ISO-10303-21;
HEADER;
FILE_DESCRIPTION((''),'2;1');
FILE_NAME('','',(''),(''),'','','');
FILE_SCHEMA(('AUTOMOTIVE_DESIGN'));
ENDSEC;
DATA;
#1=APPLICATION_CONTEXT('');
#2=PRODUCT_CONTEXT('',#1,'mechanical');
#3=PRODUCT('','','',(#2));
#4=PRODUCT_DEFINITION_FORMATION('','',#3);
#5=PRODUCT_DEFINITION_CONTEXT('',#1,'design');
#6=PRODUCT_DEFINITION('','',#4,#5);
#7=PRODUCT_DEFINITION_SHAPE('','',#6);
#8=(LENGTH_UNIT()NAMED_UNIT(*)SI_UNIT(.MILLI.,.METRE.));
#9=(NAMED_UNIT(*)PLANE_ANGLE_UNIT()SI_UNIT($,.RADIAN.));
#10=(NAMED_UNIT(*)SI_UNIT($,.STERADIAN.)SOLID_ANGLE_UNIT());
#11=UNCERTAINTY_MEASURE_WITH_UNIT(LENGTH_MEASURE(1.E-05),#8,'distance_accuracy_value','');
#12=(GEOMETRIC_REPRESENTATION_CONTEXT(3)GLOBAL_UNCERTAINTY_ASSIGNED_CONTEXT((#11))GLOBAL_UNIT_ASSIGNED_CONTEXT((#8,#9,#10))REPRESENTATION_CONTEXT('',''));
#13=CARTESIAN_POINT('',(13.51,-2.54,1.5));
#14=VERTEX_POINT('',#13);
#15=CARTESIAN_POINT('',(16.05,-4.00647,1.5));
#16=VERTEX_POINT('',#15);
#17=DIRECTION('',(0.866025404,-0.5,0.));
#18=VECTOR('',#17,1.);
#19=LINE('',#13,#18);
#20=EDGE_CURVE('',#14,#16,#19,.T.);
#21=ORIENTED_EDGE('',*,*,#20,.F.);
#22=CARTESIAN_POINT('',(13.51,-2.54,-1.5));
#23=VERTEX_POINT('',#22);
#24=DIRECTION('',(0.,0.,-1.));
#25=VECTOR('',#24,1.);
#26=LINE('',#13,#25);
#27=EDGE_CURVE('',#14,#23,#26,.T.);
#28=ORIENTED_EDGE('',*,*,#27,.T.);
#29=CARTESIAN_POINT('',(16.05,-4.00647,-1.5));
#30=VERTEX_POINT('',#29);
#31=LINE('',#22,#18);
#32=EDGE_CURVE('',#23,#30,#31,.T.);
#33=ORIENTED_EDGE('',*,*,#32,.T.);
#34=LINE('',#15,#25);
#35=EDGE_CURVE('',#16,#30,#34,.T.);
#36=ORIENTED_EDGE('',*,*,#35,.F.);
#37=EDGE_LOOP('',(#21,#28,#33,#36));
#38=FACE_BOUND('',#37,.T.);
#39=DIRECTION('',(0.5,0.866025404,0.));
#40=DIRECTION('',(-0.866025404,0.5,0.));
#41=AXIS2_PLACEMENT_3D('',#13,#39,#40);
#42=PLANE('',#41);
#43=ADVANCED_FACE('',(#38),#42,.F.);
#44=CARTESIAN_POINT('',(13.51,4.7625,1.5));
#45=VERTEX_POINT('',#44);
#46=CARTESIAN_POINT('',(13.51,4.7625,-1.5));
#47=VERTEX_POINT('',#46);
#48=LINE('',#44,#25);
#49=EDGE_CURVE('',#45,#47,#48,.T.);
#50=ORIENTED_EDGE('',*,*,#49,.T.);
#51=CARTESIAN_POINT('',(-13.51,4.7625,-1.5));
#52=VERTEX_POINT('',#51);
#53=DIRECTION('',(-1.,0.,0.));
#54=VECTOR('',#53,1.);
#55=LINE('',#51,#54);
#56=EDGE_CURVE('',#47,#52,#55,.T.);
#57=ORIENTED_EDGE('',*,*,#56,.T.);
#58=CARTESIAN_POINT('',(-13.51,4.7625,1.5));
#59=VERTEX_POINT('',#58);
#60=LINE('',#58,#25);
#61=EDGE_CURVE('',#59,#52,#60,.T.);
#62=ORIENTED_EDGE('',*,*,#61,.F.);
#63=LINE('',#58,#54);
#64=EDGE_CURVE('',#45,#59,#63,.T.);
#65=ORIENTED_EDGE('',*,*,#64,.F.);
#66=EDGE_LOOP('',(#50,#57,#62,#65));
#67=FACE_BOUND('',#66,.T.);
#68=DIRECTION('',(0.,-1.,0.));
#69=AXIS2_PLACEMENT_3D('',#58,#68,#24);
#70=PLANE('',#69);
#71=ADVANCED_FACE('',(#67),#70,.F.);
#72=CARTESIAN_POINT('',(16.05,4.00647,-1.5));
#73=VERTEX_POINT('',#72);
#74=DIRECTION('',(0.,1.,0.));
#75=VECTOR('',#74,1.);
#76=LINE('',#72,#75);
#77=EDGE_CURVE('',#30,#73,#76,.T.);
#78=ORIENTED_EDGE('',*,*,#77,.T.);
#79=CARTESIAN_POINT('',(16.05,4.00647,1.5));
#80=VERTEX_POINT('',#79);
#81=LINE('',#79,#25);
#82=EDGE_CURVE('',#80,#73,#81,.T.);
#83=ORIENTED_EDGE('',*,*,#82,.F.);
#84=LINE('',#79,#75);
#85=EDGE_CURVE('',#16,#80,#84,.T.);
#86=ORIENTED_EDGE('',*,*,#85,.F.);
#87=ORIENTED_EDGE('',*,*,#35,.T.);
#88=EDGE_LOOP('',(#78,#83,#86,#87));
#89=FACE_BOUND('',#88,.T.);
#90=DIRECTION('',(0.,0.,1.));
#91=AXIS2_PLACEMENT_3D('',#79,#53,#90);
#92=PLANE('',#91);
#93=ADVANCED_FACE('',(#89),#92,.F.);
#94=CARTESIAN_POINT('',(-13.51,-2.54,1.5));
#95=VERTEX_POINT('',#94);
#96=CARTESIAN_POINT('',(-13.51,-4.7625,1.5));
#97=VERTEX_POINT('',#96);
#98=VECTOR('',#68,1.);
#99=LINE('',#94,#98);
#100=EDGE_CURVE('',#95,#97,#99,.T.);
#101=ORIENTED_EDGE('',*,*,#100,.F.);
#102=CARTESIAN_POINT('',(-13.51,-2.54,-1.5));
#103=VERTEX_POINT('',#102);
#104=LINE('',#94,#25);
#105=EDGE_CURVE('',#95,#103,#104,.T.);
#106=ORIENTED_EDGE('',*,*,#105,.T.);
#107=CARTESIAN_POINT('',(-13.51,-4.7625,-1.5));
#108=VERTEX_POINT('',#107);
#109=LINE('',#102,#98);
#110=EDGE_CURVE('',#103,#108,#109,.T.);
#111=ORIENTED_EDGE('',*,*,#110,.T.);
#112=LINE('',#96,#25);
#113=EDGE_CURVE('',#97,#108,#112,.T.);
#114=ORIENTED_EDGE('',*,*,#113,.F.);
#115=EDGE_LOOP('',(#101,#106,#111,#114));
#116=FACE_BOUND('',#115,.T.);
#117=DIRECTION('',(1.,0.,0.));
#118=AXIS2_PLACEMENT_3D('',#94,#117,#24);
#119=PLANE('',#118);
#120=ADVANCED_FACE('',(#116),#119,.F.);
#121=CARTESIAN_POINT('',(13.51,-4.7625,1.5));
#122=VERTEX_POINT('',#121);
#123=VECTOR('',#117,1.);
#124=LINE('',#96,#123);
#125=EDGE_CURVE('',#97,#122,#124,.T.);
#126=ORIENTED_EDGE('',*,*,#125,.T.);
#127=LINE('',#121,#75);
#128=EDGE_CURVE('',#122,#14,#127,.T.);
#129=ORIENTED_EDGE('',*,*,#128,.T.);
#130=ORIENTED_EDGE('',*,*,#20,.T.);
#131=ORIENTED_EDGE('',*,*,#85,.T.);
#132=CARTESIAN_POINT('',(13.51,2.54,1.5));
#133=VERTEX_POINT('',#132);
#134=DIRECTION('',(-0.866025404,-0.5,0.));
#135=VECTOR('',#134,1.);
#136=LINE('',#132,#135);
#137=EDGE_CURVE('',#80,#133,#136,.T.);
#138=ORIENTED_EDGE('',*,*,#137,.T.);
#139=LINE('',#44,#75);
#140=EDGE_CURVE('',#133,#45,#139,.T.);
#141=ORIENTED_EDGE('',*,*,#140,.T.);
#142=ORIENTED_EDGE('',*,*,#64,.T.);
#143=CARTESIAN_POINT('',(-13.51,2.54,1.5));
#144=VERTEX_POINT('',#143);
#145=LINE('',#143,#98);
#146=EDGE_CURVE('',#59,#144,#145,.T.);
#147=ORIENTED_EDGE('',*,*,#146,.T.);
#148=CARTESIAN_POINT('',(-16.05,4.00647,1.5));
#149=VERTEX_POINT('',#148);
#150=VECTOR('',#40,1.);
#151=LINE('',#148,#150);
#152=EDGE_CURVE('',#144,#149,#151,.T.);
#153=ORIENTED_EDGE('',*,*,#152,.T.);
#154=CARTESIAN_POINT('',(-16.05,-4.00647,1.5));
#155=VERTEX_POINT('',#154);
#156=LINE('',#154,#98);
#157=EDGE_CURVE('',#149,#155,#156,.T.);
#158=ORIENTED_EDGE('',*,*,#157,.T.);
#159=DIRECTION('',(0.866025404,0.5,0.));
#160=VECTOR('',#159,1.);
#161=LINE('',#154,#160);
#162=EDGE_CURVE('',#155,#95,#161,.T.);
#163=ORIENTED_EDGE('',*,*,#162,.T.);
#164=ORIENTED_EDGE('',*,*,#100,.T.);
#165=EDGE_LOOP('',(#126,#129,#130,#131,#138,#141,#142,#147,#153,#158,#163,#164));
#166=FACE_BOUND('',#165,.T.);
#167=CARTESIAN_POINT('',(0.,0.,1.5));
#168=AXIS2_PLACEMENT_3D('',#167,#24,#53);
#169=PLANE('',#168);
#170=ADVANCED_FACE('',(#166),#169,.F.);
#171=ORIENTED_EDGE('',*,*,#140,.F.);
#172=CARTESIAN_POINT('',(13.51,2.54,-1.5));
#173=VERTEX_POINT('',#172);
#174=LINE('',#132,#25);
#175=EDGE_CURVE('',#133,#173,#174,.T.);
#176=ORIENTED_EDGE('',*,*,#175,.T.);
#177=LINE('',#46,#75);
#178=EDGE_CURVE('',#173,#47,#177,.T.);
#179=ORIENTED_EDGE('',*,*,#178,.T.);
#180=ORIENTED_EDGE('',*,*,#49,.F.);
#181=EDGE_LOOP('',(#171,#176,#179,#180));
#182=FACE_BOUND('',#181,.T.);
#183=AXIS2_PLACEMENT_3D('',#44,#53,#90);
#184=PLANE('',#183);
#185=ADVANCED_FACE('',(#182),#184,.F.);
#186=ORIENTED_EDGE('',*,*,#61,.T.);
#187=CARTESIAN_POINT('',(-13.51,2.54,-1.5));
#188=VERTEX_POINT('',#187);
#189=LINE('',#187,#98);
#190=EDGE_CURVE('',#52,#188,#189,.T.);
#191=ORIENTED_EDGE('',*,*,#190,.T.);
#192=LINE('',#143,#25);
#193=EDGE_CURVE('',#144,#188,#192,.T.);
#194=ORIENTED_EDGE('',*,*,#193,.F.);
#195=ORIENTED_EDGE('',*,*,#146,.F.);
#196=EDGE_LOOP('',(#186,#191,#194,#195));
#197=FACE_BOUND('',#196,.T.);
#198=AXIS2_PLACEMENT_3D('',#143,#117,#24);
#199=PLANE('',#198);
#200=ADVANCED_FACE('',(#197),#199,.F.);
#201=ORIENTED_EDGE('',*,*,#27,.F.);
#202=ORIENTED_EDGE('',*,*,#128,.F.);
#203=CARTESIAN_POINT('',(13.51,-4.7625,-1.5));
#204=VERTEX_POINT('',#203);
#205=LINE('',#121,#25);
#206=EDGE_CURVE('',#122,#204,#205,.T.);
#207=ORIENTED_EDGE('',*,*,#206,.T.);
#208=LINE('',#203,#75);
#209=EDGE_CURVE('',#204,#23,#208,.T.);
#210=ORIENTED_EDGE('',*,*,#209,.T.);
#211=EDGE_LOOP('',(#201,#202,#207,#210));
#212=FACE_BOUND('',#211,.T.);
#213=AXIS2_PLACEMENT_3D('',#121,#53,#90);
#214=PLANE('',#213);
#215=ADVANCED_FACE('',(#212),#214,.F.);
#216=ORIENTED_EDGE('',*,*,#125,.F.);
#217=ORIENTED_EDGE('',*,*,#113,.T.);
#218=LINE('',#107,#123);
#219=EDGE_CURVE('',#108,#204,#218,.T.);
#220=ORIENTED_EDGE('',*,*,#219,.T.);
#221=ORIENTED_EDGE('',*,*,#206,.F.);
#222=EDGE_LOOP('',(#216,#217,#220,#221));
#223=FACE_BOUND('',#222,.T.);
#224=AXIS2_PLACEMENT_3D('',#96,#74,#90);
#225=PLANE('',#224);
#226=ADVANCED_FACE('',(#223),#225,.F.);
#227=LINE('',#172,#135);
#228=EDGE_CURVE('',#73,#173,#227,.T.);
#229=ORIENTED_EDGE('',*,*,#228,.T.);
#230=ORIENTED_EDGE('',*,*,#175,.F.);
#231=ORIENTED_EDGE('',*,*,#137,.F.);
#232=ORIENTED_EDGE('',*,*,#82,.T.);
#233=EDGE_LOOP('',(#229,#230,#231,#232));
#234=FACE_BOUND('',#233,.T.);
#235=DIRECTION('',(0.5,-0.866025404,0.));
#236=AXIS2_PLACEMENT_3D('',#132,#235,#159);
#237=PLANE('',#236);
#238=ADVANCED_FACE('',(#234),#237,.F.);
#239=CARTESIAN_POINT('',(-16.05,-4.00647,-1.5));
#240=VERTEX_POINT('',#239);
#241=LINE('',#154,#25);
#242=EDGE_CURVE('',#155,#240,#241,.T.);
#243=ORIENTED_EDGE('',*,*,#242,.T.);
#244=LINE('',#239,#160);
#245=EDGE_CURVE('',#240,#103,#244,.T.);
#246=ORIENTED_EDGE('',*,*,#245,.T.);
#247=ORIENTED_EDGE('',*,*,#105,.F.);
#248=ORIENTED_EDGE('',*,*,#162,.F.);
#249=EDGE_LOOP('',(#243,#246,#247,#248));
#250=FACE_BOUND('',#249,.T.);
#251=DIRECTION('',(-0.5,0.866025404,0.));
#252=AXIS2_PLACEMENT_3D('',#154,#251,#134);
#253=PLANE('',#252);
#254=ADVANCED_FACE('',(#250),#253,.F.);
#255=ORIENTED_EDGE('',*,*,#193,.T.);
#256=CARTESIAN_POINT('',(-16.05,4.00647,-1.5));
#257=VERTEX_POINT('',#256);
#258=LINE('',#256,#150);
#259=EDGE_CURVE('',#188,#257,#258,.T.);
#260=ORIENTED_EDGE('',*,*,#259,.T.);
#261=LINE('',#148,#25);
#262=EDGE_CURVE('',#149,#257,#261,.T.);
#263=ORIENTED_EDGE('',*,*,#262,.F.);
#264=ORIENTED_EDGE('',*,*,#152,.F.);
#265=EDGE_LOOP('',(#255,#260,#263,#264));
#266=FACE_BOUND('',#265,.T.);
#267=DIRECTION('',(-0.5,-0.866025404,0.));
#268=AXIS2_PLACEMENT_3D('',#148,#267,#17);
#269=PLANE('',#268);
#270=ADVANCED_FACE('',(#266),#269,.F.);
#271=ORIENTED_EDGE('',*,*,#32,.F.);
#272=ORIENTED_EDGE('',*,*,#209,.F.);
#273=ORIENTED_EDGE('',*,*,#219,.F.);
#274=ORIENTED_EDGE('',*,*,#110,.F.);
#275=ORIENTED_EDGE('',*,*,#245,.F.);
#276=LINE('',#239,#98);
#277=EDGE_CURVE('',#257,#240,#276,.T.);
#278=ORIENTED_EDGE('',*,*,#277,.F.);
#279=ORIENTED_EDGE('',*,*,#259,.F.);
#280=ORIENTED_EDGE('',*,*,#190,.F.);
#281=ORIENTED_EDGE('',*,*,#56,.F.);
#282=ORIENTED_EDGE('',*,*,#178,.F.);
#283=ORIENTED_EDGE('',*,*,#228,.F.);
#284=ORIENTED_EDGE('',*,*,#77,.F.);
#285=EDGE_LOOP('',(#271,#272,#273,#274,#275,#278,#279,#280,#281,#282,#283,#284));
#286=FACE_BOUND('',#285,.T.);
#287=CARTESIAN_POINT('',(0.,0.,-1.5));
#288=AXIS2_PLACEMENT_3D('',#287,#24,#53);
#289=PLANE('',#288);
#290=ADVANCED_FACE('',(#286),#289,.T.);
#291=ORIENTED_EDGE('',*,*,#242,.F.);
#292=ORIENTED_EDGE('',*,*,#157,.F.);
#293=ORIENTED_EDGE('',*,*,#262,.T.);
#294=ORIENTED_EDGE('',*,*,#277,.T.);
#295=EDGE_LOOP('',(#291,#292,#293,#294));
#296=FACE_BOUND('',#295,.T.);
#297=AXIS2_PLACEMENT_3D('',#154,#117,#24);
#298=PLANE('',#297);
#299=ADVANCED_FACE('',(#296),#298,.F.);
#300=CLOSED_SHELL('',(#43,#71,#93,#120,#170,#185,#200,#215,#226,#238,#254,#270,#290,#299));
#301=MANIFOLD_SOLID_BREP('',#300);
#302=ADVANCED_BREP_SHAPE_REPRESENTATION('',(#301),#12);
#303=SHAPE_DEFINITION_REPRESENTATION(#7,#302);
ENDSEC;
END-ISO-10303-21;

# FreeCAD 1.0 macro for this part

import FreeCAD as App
import Part
import Sketcher
from FreeCAD import Vector
Q = App.Units.Quantity

doc = App.newDocument("Part")
params = doc.addObject("Spreadsheet::Sheet", "Params")
for row, (alias, value) in enumerate([
    ("sketch1_width", "27.02 mm"),
    ("pad1_length", "3 mm"),
], start=1):
    params.set(f"A{row}", alias)
    params.set(f"B{row}", "=" + value)
    params.setAlias(f"B{row}", alias)

body = doc.addObject("PartDesign::Body", "Body")

# Sketch on XY plane
sketch1 = body.newObject("Sketcher::SketchObject", "Sketch")
sketch1.AttachmentSupport = (doc.getObject("XY_Plane"), [""])
sketch1.MapMode = "FlatFace"
sketch1.addGeometry(Part.LineSegment(Vector(-16, 4, 0), Vector(-16, -4, 0)), False)
sketch1.addGeometry(Part.LineSegment(Vector(-16, -4, 0), Vector(-13.5, -2.5, 0)), False)
sketch1.addGeometry(Part.LineSegment(Vector(-13.5, -2.5, 0), Vector(-13.5, -4.8, 0)), False)
sketch1.addGeometry(Part.LineSegment(Vector(-13.5, -4.8, 0), Vector(13.5, -4.8, 0)), False)
sketch1.addGeometry(Part.LineSegment(Vector(13.5, -4.8, 0), Vector(13.5, -2.5, 0)), False)
sketch1.addGeometry(Part.LineSegment(Vector(13.5, -2.5, 0), Vector(16, -4, 0)), False)
sketch1.addGeometry(Part.LineSegment(Vector(16, -4, 0), Vector(16, 4, 0)), False)
sketch1.addGeometry(Part.LineSegment(Vector(16, 4, 0), Vector(13.5, 2.5, 0)), False)
sketch1.addGeometry(Part.LineSegment(Vector(13.5, 2.5, 0), Vector(13.5, 4.8, 0)), False)
sketch1.addGeometry(Part.LineSegment(Vector(13.5, 4.8, 0), Vector(-13.5, 4.8, 0)), False)
sketch1.addGeometry(Part.LineSegment(Vector(-13.5, 4.8, 0), Vector(-13.5, 2.5, 0)), False)
sketch1.addGeometry(Part.LineSegment(Vector(-13.5, 2.5, 0), Vector(-16, 4, 0)), False)
sketch1.addConstraint(Sketcher.Constraint("Coincident", 0, 2, 1, 1))
sketch1.addConstraint(Sketcher.Constraint("Coincident", 1, 2, 2, 1))
sketch1.addConstraint(Sketcher.Constraint("Coincident", 2, 2, 3, 1))
sketch1.addConstraint(Sketcher.Constraint("Coincident", 3, 2, 4, 1))
sketch1.addConstraint(Sketcher.Constraint("Coincident", 4, 2, 5, 1))
sketch1.addConstraint(Sketcher.Constraint("Coincident", 5, 2, 6, 1))
sketch1.addConstraint(Sketcher.Constraint("Coincident", 6, 2, 7, 1))
sketch1.addConstraint(Sketcher.Constraint("Coincident", 7, 2, 8, 1))
sketch1.addConstraint(Sketcher.Constraint("Coincident", 8, 2, 9, 1))
sketch1.addConstraint(Sketcher.Constraint("Coincident", 9, 2, 10, 1))
sketch1.addConstraint(Sketcher.Constraint("Coincident", 10, 2, 11, 1))
sketch1.addConstraint(Sketcher.Constraint("Coincident", 11, 2, 0, 1))
sketch1.addConstraint(Sketcher.Constraint("Vertical", 0))
sketch1.addConstraint(Sketcher.Constraint("Vertical", 2))
sketch1.addConstraint(Sketcher.Constraint("Horizontal", 3))
sketch1.addConstraint(Sketcher.Constraint("Vertical", 4))
sketch1.addConstraint(Sketcher.Constraint("Vertical", 6))
sketch1.addConstraint(Sketcher.Constraint("Vertical", 8))
sketch1.addConstraint(Sketcher.Constraint("Horizontal", 9))
sketch1.addConstraint(Sketcher.Constraint("Vertical", 10))
sketch1.addConstraint(Sketcher.Constraint("Symmetric", 0, 2, 6, 2, -1, 1))
sketch1.addConstraint(Sketcher.Constraint("Symmetric", 1, 2, 7, 2, -1, 1))
sketch1.addConstraint(Sketcher.Constraint("Symmetric", 3, 2, 9, 2, -1, 1))
sketch1.addConstraint(Sketcher.Constraint("Symmetric", 1, 2, 4, 2, -2))
sketch1.addConstraint(Sketcher.Constraint("Parallel", 5, 11))
sketch1.addConstraint(Sketcher.Constraint("Horizontal", 0, 2, 5, 2))
sketch1.addConstraint(Sketcher.Constraint("Horizontal", 7, 2, 10, 2))
sketch1.addConstraint(Sketcher.Constraint("Angle", 1, Q("30 deg")))
sketch1.addConstraint(Sketcher.Constraint("DistanceX", 3, 1, 3, 2, 27.02))
sketch1.addConstraint(Sketcher.Constraint("DistanceX", 0, 2, 5, 2, 32.1))
sketch1.addConstraint(Sketcher.Constraint("DistanceY", 1, 2, -1, 1, 2.54))
sketch1.addConstraint(Sketcher.Constraint("DistanceY", 2, 2, 2, 1, 2.2225))
sketch1.setExpression("Constraints[28]", "Params.sketch1_width")
pad1 = body.newObject("PartDesign::Pad", "Pad")
pad1.Profile = sketch1
pad1.setExpression("Length", "Params.pad1_length")
pad1.Midplane = True

doc.recompute()
